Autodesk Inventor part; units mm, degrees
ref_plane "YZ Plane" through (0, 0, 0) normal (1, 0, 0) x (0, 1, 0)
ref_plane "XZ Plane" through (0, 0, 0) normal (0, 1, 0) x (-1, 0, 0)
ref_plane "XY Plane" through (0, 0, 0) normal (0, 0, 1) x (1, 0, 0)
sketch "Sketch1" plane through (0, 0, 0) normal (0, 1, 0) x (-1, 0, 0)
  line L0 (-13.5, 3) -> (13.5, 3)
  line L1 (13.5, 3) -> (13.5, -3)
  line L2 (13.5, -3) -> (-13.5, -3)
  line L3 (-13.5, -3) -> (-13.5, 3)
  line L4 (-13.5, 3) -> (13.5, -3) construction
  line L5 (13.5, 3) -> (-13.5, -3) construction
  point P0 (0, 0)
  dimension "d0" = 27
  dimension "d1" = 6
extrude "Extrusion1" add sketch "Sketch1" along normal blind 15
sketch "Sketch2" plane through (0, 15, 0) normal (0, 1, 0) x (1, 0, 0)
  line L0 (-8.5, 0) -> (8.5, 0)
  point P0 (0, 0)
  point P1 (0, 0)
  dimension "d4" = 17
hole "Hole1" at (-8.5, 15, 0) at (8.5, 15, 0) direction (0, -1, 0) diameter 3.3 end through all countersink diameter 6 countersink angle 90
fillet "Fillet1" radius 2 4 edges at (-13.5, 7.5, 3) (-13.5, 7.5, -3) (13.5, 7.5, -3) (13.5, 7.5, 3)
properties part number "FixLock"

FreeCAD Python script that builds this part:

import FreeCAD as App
import Part
import Sketcher
from FreeCAD import Vector


def edges_at(feature, points):
    """Names of the edges that pass closest to the given points."""
    edges = feature.Shape.Edges
    near = lambda p: min(range(len(edges)), key=lambda i: edges[i].distToShape(Part.Vertex(*p))[0])
    return sorted({f"Edge{near(p) + 1}" for p in points})

doc = App.newDocument("Part")
params = doc.addObject("Spreadsheet::Sheet", "Params")
for row, (alias, value) in enumerate([
    ("sketch1_width", "27 mm"),
    ("sketch1_height", "6 mm"),
    ("pad1_length", "15 mm"),
    ("sketch2_diameter", "3.3 mm"),
    ("hole_diameter", "3.3 mm"),
    ("hole_csink_diameter", "6 mm"),
    ("fillet_radius", "2 mm"),
], start=1):
    params.set(f"A{row}", alias)
    params.set(f"B{row}", "=" + value)
    params.setAlias(f"B{row}", alias)

body = doc.addObject("PartDesign::Body", "Body")

# Sketch on XZ plane
sketch1 = doc.addObject("Sketcher::SketchObject", "Sketch")
body.addObject(sketch1)
sketch1.AttachmentSupport = (doc.XZ_Plane, [""])
sketch1.MapMode = "FlatFace"
sketch1.addGeometry([
    Part.LineSegment(Vector(-13.5, 3, 0), Vector(13.5, 3, 0)),
    Part.LineSegment(Vector(13.5, 3, 0), Vector(13.5, -3, 0)),
    Part.LineSegment(Vector(13.5, -3, 0), Vector(-13.5, -3, 0)),
    Part.LineSegment(Vector(-13.5, -3, 0), Vector(-13.5, 3, 0)),
], False)
sketch1.addConstraint([
    Sketcher.Constraint("Coincident", 0, 2, 1, 1),
    Sketcher.Constraint("Coincident", 1, 2, 2, 1),
    Sketcher.Constraint("Coincident", 2, 2, 3, 1),
    Sketcher.Constraint("Coincident", 3, 2, 0, 1),
    Sketcher.Constraint("Horizontal", 0),
    Sketcher.Constraint("Vertical", 1),
    Sketcher.Constraint("Horizontal", 2),
    Sketcher.Constraint("Vertical", 3),
    Sketcher.Constraint("Symmetric", 0, 2, 2, 2, -1, 1),
    Sketcher.Constraint("DistanceX", 0, 1, 0, 2, 27.0),
    Sketcher.Constraint("DistanceY", 1, 2, 1, 1, 6.0),
])
sketch1.setExpression("Constraints[9]", "Params.sketch1_width")
sketch1.setExpression("Constraints[10]", "Params.sketch1_height")
pad1 = doc.addObject("PartDesign::Pad", "Pad")
body.addObject(pad1)
pad1.Profile = sketch1
pad1.setExpression("Length", "Params.pad1_length")
pad1.Reversed = True

# Sketch on XZ plane
sketch2 = doc.addObject("Sketcher::SketchObject", "Sketch001")
body.addObject(sketch2)
sketch2.AttachmentSupport = (doc.XZ_Plane, [""])
sketch2.MapMode = "FlatFace"
sketch2.AttachmentOffset = App.Placement(Vector(0, 0, -15), App.Rotation())
sketch2.addGeometry([
    Part.Circle(Vector(-8.5, 0, 0), Vector(0, 0, 1), 1.65),
    Part.Circle(Vector(8.5, 0, 0), Vector(0, 0, 1), 1.65),
], False)
sketch2.addConstraint([
    Sketcher.Constraint("Equal", 0, 1),
    Sketcher.Constraint("Symmetric", 0, 3, 1, 3, -1, 1),
    Sketcher.Constraint("PointOnObject", 0, 3, -1),
    Sketcher.Constraint("Diameter", 0, 3.3),
    Sketcher.Constraint("DistanceX", 0, 3, 1, 3, 17.0),
])
sketch2.setExpression("Constraints[3]", "Params.sketch2_diameter")
doc.recompute()
hole = doc.addObject("PartDesign::Hole", "Hole")
body.addObject(hole)
hole.Profile = sketch2
hole.ThreadType = "None"
hole.setExpression("Diameter", "Params.hole_diameter")
hole.DepthType = "ThroughAll"
hole.HoleCutType = "Countersink"
hole.setExpression("HoleCutDiameter", "Params.hole_csink_diameter")
hole.HoleCutCountersinkAngle = 90
hole.Reversed = True
doc.recompute()

fillet = doc.addObject("PartDesign::Fillet", "Fillet")
body.addObject(fillet)
fillet.Base = (hole, edges_at(hole, [
    (-13.5, 7.5, 3),
    (-13.5, 7.5, -3),
    (13.5, 7.5, -3),
    (13.5, 7.5, 3),
]))
fillet.setExpression("Radius", "Params.fillet_radius")

doc.recompute()
